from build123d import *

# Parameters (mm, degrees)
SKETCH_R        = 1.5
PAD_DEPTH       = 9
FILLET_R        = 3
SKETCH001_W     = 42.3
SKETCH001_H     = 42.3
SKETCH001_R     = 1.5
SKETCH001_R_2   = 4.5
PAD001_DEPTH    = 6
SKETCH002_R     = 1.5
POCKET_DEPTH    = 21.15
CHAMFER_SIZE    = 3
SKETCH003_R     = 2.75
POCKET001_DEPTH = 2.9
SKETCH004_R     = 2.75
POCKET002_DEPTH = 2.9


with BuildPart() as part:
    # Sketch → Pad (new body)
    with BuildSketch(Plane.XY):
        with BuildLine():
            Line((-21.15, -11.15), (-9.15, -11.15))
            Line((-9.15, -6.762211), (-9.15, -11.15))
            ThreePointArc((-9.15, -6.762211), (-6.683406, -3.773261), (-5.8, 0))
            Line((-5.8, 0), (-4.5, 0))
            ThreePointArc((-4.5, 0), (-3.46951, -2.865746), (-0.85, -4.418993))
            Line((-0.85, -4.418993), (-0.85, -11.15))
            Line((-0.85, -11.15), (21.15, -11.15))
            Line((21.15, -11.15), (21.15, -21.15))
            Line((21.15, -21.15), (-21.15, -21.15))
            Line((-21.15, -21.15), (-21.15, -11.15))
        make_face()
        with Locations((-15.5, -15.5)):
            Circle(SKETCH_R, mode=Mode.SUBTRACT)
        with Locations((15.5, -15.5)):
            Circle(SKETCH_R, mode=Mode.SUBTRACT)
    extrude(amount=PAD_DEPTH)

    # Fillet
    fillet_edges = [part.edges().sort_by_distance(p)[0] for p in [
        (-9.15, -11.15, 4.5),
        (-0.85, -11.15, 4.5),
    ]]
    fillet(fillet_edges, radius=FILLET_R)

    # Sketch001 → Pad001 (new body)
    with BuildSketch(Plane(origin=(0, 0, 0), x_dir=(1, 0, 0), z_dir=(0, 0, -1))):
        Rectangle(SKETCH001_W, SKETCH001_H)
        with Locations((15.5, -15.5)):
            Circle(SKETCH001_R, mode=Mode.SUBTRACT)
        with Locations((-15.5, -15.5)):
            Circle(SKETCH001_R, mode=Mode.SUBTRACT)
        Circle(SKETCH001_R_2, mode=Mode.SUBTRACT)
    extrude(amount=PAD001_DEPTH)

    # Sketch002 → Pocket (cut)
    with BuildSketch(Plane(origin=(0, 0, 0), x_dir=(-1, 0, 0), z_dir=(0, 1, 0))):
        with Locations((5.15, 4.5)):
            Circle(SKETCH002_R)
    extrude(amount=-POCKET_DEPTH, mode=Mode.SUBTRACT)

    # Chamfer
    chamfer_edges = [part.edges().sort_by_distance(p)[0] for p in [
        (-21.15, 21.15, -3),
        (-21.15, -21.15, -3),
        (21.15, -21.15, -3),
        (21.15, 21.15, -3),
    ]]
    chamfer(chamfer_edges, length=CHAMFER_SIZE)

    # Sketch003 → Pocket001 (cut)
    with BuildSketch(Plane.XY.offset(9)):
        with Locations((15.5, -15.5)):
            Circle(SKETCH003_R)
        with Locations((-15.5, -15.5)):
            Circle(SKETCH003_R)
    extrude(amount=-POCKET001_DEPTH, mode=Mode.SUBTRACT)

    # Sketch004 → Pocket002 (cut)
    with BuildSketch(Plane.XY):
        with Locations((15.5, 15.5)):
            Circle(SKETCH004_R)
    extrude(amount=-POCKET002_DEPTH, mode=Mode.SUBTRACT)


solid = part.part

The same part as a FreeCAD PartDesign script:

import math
import FreeCAD as App
import Part
import Sketcher
from FreeCAD import Vector


def edges_at(feature, points):
    """Names of the edges that pass closest to the given points."""
    edges = feature.Shape.Edges
    near = lambda p: min(range(len(edges)), key=lambda i: edges[i].distToShape(Part.Vertex(*p))[0])
    return sorted({f"Edge{near(p) + 1}" for p in points})

doc = App.newDocument("Part")
params = doc.addObject("Spreadsheet::Sheet", "Params")
for row, (alias, value) in enumerate([
    ("sketch1_diameter", "3 mm"),
    ("sketch1_radius", "4.5 mm"),
    ("sketch1_width", "12 mm"),
    ("sketch1_width2", "22 mm"),
    ("sketch1_height", "10 mm"),
    ("pad1_length", "9 mm"),
    ("fillet_radius", "3 mm"),
    ("sketch2_diameter", "3 mm"),
    ("sketch2_diameter2", "9 mm"),
    ("sketch2_width", "42.3 mm"),
    ("pad2_length", "6 mm"),
    ("sketch3_diameter", "3 mm"),
    ("pocket1_length", "21.15 mm"),
    ("chamfer_size", "3 mm"),
    ("sketch4_diameter", "5.5 mm"),
    ("pocket2_length", "2.9 mm"),
    ("sketch5_diameter", "5.5 mm"),
    ("pocket3_length", "2.9 mm"),
], start=1):
    params.set(f"A{row}", alias)
    params.set(f"B{row}", "=" + value)
    params.setAlias(f"B{row}", alias)

body = doc.addObject("PartDesign::Body", "Body")

# Sketch on XY plane
sketch1 = doc.addObject("Sketcher::SketchObject", "Sketch")
body.addObject(sketch1)
sketch1.AttachmentSupport = (doc.XY_Plane, [""])
sketch1.MapMode = "FlatFace"
sketch1.addGeometry(Part.LineSegment(Vector(-9.2, -11.2, 0), Vector(-21.1, -11.2, 0)), False)
sketch1.addGeometry(Part.LineSegment(Vector(-21.1, -11.2, 0), Vector(-21.1, -21.1, 0)), False)
sketch1.addGeometry(Part.LineSegment(Vector(-21.1, -21.1, 0), Vector(21.1, -21.1, 0)), False)
sketch1.addGeometry(Part.LineSegment(Vector(21.1, -21.1, 0), Vector(21.1, -11.2, 0)), False)
sketch1.addGeometry(Part.LineSegment(Vector(21.1, -11.2, 0), Vector(-0.8, -11.2, 0)), False)
sketch1.addGeometry(Part.LineSegment(Vector(-0.8, -11.2, 0), Vector(-0.8, -4.4, 0)), False)
sketch1.addGeometry(Part.ArcOfCircle(Part.Circle(Vector(0, 0, 0), Vector(0, 0, 1), 4.5), math.radians(180), math.radians(259)), False)
sketch1.addGeometry(Part.LineSegment(Vector(-4.5, 0, 0), Vector(-5.8, 0, 0)), False)
sketch1.addGeometry(Part.ArcOfCircle(Part.Circle(Vector(-14.3, 0, 0), Vector(0, 0, 1), 8.5), math.radians(-53), math.radians(0)), False)
sketch1.addGeometry(Part.LineSegment(Vector(-9.2, -6.8, 0), Vector(-9.2, -11.2, 0)), False)
sketch1.addGeometry(Part.Circle(Vector(15.5, -15.5, 0), Vector(0, 0, 1), 1.5), False)
sketch1.addGeometry(Part.Circle(Vector(-15.5, -15.5, 0), Vector(0, 0, 1), 1.5), False)
sketch1.addConstraint(Sketcher.Constraint("Coincident", 0, 2, 1, 1))
sketch1.addConstraint(Sketcher.Constraint("Coincident", 1, 2, 2, 1))
sketch1.addConstraint(Sketcher.Constraint("Coincident", 2, 2, 3, 1))
sketch1.addConstraint(Sketcher.Constraint("Coincident", 3, 2, 4, 1))
sketch1.addConstraint(Sketcher.Constraint("Coincident", 4, 2, 5, 1))
sketch1.addConstraint(Sketcher.Constraint("Coincident", 5, 2, 6, 2))
sketch1.addConstraint(Sketcher.Constraint("Coincident", 6, 1, 7, 1))
sketch1.addConstraint(Sketcher.Constraint("Coincident", 7, 2, 8, 2))
sketch1.addConstraint(Sketcher.Constraint("Coincident", 8, 1, 9, 1))
sketch1.addConstraint(Sketcher.Constraint("Coincident", 9, 2, 0, 1))
sketch1.addConstraint(Sketcher.Constraint("Horizontal", 0))
sketch1.addConstraint(Sketcher.Constraint("Vertical", 1))
sketch1.addConstraint(Sketcher.Constraint("Horizontal", 2))
sketch1.addConstraint(Sketcher.Constraint("Vertical", 3))
sketch1.addConstraint(Sketcher.Constraint("Horizontal", 4))
sketch1.addConstraint(Sketcher.Constraint("Vertical", 5))
sketch1.addConstraint(Sketcher.Constraint("Horizontal", 7))
sketch1.addConstraint(Sketcher.Constraint("Vertical", 9))
sketch1.addConstraint(Sketcher.Constraint("Coincident", 6, 3, -1, 1))
sketch1.addConstraint(Sketcher.Constraint("Equal", 10, 11))
sketch1.addConstraint(Sketcher.Constraint("Symmetric", 10, 3, 11, 3, -2))
sketch1.addConstraint(Sketcher.Constraint("Symmetric", 0, 2, 3, 2, -2))
sketch1.addConstraint(Sketcher.Constraint("PointOnObject", 8, 3, -1))
sketch1.addConstraint(Sketcher.Constraint("PointOnObject", 6, 1, -1))
sketch1.addConstraint(Sketcher.Constraint("Diameter", 10, 3.0))
sketch1.addConstraint(Sketcher.Constraint("Radius", 6, 4.5))
sketch1.addConstraint(Sketcher.Constraint("DistanceX", 0, 2, 0, 1, 12.0))
sketch1.addConstraint(Sketcher.Constraint("DistanceX", 4, 2, 4, 1, 22.0))
sketch1.addConstraint(Sketcher.Constraint("DistanceY", 1, 2, 1, 1, 10.0))
sketch1.addConstraint(Sketcher.Constraint("DistanceX", 2, 1, 2, 2, 42.3))
sketch1.addConstraint(Sketcher.Constraint("DistanceX", 7, 2, 7, 1, 1.3))
sketch1.addConstraint(Sketcher.Constraint("DistanceX", 11, 3, 10, 3, 31.0))
sketch1.addConstraint(Sketcher.Constraint("DistanceY", 10, 3, -1, 1, 15.5))
sketch1.addConstraint(Sketcher.Constraint("DistanceY", 0, 2, -1, 1, 11.15))
sketch1.addConstraint(Sketcher.Constraint("Radius", 8, 8.499998))
sketch1.setExpression("Constraints[24]", "Params.sketch1_diameter")
sketch1.setExpression("Constraints[25]", "Params.sketch1_radius")
sketch1.setExpression("Constraints[26]", "Params.sketch1_width")
sketch1.setExpression("Constraints[27]", "Params.sketch1_width2")
sketch1.setExpression("Constraints[28]", "Params.sketch1_height")
pad1 = doc.addObject("PartDesign::Pad", "Pad")
body.addObject(pad1)
pad1.Profile = sketch1
pad1.setExpression("Length", "Params.pad1_length")
doc.recompute()

fillet = doc.addObject("PartDesign::Fillet", "Fillet")
body.addObject(fillet)
fillet.Base = (pad1, edges_at(pad1, [(-9.15, -11.15, 4.5), (-0.85, -11.15, 4.5)]))
fillet.setExpression("Radius", "Params.fillet_radius")

# Sketch on XY plane
sketch2 = doc.addObject("Sketcher::SketchObject", "Sketch001")
body.addObject(sketch2)
sketch2.AttachmentSupport = (doc.XY_Plane, [""])
sketch2.MapMode = "FlatFace"
sketch2.addGeometry(Part.LineSegment(Vector(-21.1, -21.1, 0), Vector(-21.1, 21.1, 0)), False)
sketch2.addGeometry(Part.LineSegment(Vector(-21.1, 21.1, 0), Vector(21.1, 21.1, 0)), False)
sketch2.addGeometry(Part.LineSegment(Vector(21.1, 21.1, 0), Vector(21.1, -21.1, 0)), False)
sketch2.addGeometry(Part.LineSegment(Vector(21.1, -21.1, 0), Vector(-21.1, -21.1, 0)), False)
sketch2.addGeometry(Part.Circle(Vector(-15.5, 15.5, 0), Vector(0, 0, 1), 1.5), False)
sketch2.addGeometry(Part.Circle(Vector(15.5, 15.5, 0), Vector(0, 0, 1), 1.5), False)
sketch2.addGeometry(Part.Circle(Vector(0, 0, 0), Vector(0, 0, 1), 4.5), False)
sketch2.addConstraint(Sketcher.Constraint("Coincident", 0, 2, 1, 1))
sketch2.addConstraint(Sketcher.Constraint("Coincident", 1, 2, 2, 1))
sketch2.addConstraint(Sketcher.Constraint("Coincident", 2, 2, 3, 1))
sketch2.addConstraint(Sketcher.Constraint("Coincident", 3, 2, 0, 1))
sketch2.addConstraint(Sketcher.Constraint("Vertical", 0))
sketch2.addConstraint(Sketcher.Constraint("Horizontal", 1))
sketch2.addConstraint(Sketcher.Constraint("Vertical", 2))
sketch2.addConstraint(Sketcher.Constraint("Horizontal", 3))
sketch2.addConstraint(Sketcher.Constraint("Coincident", 6, 3, -1, 1))
sketch2.addConstraint(Sketcher.Constraint("Equal", 4, 5))
sketch2.addConstraint(Sketcher.Constraint("Symmetric", 0, 2, 2, 2, -1, 1))
sketch2.addConstraint(Sketcher.Constraint("Symmetric", 4, 3, 5, 3, -2))
sketch2.addConstraint(Sketcher.Constraint("Equal", 3, 0))
sketch2.addConstraint(Sketcher.Constraint("Diameter", 4, 3.0))
sketch2.addConstraint(Sketcher.Constraint("Diameter", 6, 9.0))
sketch2.addConstraint(Sketcher.Constraint("DistanceX", 1, 1, 1, 2, 42.3))
sketch2.addConstraint(Sketcher.Constraint("DistanceX", 4, 3, 5, 3, 31.0))
sketch2.addConstraint(Sketcher.Constraint("DistanceY", -1, 1, 4, 3, 15.5))
sketch2.setExpression("Constraints[13]", "Params.sketch2_diameter")
sketch2.setExpression("Constraints[14]", "Params.sketch2_diameter2")
sketch2.setExpression("Constraints[15]", "Params.sketch2_width")
pad2 = doc.addObject("PartDesign::Pad", "Pad001")
body.addObject(pad2)
pad2.Profile = sketch2
pad2.setExpression("Length", "Params.pad2_length")
pad2.Reversed = True

# Sketch on XZ plane
sketch3 = doc.addObject("Sketcher::SketchObject", "Sketch002")
body.addObject(sketch3)
sketch3.AttachmentSupport = (doc.XZ_Plane, [""])
sketch3.MapMode = "FlatFace"
sketch3.addGeometry(Part.Circle(Vector(-5.2, 4.5, 0), Vector(0, 0, 1), 1.5), False)
sketch3.addConstraint(Sketcher.Constraint("Diameter", 0, 3.0))
sketch3.addConstraint(Sketcher.Constraint("DistanceY", -1, 1, 0, 3, 4.5))
sketch3.addConstraint(Sketcher.Constraint("DistanceX", 0, 3, -1, 1, 5.15))
sketch3.setExpression("Constraints[0]", "Params.sketch3_diameter")
pocket1 = doc.addObject("PartDesign::Pocket", "Pocket")
body.addObject(pocket1)
pocket1.Profile = sketch3
pocket1.setExpression("Length", "Params.pocket1_length")
pocket1.Reversed = True
doc.recompute()

chamfer = doc.addObject("PartDesign::Chamfer", "Chamfer")
body.addObject(chamfer)
chamfer.Base = (pocket1, edges_at(pocket1, [
    (-21.15, 21.15, -3),
    (-21.15, -21.15, 1.5),
    (21.15, -21.15, 1.5),
    (21.15, 21.15, -3),
]))
chamfer.setExpression("Size", "Params.chamfer_size")

# Sketch on XY plane
sketch4 = doc.addObject("Sketcher::SketchObject", "Sketch003")
body.addObject(sketch4)
sketch4.AttachmentSupport = (doc.XY_Plane, [""])
sketch4.MapMode = "FlatFace"
sketch4.AttachmentOffset = App.Placement(Vector(0, 0, 9), App.Rotation())
sketch4.addGeometry(Part.Circle(Vector(15.5, -15.5, 0), Vector(0, 0, 1), 2.8), False)
sketch4.addGeometry(Part.Circle(Vector(-15.5, -15.5, 0), Vector(0, 0, 1), 2.8), False)
sketch4.addConstraint(Sketcher.Constraint("Equal", 0, 1))
sketch4.addConstraint(Sketcher.Constraint("Symmetric", 0, 3, 1, 3, -2))
sketch4.addConstraint(Sketcher.Constraint("Diameter", 0, 5.5))
sketch4.addConstraint(Sketcher.Constraint("DistanceX", 1, 3, 0, 3, 31.0))
sketch4.addConstraint(Sketcher.Constraint("DistanceY", 0, 3, -1, 1, 15.5))
sketch4.setExpression("Constraints[2]", "Params.sketch4_diameter")
pocket2 = doc.addObject("PartDesign::Pocket", "Pocket001")
body.addObject(pocket2)
pocket2.Profile = sketch4
pocket2.setExpression("Length", "Params.pocket2_length")

# Sketch on XY plane
sketch5 = doc.addObject("Sketcher::SketchObject", "Sketch004")
body.addObject(sketch5)
sketch5.AttachmentSupport = (doc.XY_Plane, [""])
sketch5.MapMode = "FlatFace"
sketch5.addGeometry(Part.Circle(Vector(15.5, 15.5, 0), Vector(0, 0, 1), 2.8), False)
sketch5.addConstraint(Sketcher.Constraint("Diameter", 0, 5.5))
sketch5.addConstraint(Sketcher.Constraint("DistanceX", -1, 1, 0, 3, 15.5))
sketch5.addConstraint(Sketcher.Constraint("DistanceY", -1, 1, 0, 3, 15.5))
sketch5.setExpression("Constraints[0]", "Params.sketch5_diameter")
pocket3 = doc.addObject("PartDesign::Pocket", "Pocket002")
body.addObject(pocket3)
pocket3.Profile = sketch5
pocket3.setExpression("Length", "Params.pocket3_length")

doc.recompute()
